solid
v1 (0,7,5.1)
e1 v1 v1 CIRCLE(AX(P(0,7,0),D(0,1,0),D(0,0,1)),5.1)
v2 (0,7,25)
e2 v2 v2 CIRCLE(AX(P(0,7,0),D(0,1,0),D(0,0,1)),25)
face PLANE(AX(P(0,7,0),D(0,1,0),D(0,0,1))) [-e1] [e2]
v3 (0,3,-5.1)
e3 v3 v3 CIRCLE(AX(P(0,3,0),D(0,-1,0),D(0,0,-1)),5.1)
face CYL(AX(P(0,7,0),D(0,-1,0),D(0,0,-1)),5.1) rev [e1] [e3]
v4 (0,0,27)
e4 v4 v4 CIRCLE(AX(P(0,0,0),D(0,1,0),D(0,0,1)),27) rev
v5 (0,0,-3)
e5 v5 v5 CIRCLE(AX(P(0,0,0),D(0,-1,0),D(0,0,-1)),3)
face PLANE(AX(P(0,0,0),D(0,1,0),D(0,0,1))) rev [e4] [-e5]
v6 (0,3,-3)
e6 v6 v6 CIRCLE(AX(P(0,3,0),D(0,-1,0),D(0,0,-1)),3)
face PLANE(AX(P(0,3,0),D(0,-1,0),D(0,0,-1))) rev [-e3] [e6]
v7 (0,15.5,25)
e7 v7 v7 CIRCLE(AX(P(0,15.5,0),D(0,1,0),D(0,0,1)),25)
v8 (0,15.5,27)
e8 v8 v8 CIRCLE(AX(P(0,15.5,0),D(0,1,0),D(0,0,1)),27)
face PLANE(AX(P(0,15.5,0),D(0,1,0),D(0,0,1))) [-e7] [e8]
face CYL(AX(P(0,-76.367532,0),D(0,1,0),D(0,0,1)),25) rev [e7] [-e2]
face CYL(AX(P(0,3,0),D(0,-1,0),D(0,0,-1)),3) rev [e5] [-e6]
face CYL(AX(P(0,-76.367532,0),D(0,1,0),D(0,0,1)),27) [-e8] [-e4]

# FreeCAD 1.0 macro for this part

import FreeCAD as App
import Part
import Sketcher
Q = App.Units.Quantity

doc = App.newDocument("Part")
body = doc.addObject("PartDesign::Body", "Body")

# Sketch on XZ plane
sketch1 = body.newObject("Sketcher::SketchObject", "Sketch")
sketch1.AttachmentSupport = (doc.getObject("XZ_Plane"), [""])
sketch1.MapMode = "FlatFace"
sketch1.addGeometry([
    Part.Circle(App.Vector(0, 0, 0), App.Vector(0, 0, 1), 25),
    Part.Circle(App.Vector(0, 0, 0), App.Vector(0, 0, 1), 5),
], False)
sketch1.addConstraint([
    Sketcher.Constraint("Coincident", 0, 3, -1, 1),
    Sketcher.Constraint("Coincident", 1, 3, -1, 1),
    Sketcher.Constraint("Diameter", 0, Q("50 mm")),
    Sketcher.Constraint("Diameter", 1, Q("10.2 mm")),
])
pad1 = body.newObject("PartDesign::Pad", "Pad")
pad1.Profile = sketch1
pad1.Length = 7
pad1.Reversed = True

# Sketch on XZ plane
sketch2 = body.newObject("Sketcher::SketchObject", "Sketch001")
sketch2.AttachmentSupport = (doc.getObject("XZ_Plane"), [""])
sketch2.MapMode = "FlatFace"
sketch2.addGeometry([
    Part.Circle(App.Vector(0, 0, 0), App.Vector(0, 0, 1), 25),
    Part.Circle(App.Vector(0, 0, 0), App.Vector(0, 0, 1), 3),
], False)
sketch2.addConstraint([
    Sketcher.Constraint("Coincident", 0, 3, -1, 1),
    Sketcher.Constraint("Coincident", 1, 3, -1, 1),
    Sketcher.Constraint("Diameter", 0, Q("50 mm")),
    Sketcher.Constraint("Diameter", 1, Q("6 mm")),
])
pad2 = body.newObject("PartDesign::Pad", "Pad001")
pad2.Profile = sketch2
pad2.Length = 3
pad2.Reversed = True

# Sketch on XZ plane
sketch3 = body.newObject("Sketcher::SketchObject", "Sketch002")
sketch3.AttachmentSupport = (doc.getObject("XZ_Plane"), [""])
sketch3.MapMode = "FlatFace"
sketch3.AttachmentOffset = App.Placement(App.Vector(0, 0, -7), App.Rotation())
sketch3.addGeometry([
    Part.Circle(App.Vector(0, 0, 0), App.Vector(0, 0, 1), 27),
    Part.Circle(App.Vector(0, 0, 0), App.Vector(0, 0, 1), 25),
], False)
sketch3.addConstraint([
    Sketcher.Constraint("Coincident", 0, 3, -1, 1),
    Sketcher.Constraint("Coincident", 1, 3, -1, 1),
    Sketcher.Constraint("Diameter", 0, Q("54 mm")),
    Sketcher.Constraint("Diameter", 1, Q("50 mm")),
])
pad3 = body.newObject("PartDesign::Pad", "Pad002")
pad3.Profile = sketch3
pad3.Type = "TwoLengths"
pad3.Length = 8.5
pad3.Length2 = 7
pad3.Reversed = True

doc.recompute()
